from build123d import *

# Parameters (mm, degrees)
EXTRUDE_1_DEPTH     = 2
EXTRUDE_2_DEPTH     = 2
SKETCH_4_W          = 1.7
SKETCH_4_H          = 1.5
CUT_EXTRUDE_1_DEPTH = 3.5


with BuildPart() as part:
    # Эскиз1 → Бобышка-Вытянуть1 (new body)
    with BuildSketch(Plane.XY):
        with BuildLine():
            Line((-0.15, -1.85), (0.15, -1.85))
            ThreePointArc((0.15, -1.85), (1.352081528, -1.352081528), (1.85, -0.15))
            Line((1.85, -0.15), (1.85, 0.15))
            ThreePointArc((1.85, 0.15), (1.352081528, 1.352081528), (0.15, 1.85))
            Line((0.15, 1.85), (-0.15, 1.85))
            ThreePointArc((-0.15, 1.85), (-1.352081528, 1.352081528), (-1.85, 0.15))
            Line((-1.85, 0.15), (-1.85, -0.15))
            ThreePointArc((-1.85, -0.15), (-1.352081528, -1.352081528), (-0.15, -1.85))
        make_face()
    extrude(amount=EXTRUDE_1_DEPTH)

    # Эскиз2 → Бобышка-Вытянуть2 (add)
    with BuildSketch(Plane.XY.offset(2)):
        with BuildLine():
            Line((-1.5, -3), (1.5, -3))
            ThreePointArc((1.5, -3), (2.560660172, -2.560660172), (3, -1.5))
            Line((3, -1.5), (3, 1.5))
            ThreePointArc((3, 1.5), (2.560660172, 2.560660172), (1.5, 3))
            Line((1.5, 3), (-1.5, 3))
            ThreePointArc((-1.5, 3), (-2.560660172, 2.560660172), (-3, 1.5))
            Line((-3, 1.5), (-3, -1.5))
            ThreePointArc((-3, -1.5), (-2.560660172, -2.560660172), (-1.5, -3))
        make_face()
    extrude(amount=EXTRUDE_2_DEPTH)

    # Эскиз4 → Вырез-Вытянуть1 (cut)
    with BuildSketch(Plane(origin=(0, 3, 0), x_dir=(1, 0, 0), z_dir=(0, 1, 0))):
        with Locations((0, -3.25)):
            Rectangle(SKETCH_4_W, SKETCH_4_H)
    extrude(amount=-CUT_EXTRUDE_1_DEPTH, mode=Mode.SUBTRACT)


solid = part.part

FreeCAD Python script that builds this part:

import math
import FreeCAD as App
import Part
import Sketcher
Q = App.Units.Quantity

doc = App.newDocument("Part")
body = doc.addObject("PartDesign::Body", "Body")

# Sketch on XY plane
sketch1 = body.newObject("Sketcher::SketchObject", "Sketch")
sketch1.AttachmentSupport = (doc.getObject("XY_Plane"), [""])
sketch1.MapMode = "FlatFace"
sketch1.addGeometry([
    Part.LineSegment(App.Vector(-0.15, -1.85, 0), App.Vector(0.15, -1.85, 0)),  # 0
    Part.ArcOfCircle(Part.Circle(App.Vector(0.15, -0.15, 0), App.Vector(0, 0, 1), 1.7), math.radians(-90), math.radians(0)),  # 1
    Part.LineSegment(App.Vector(1.85, -0.15, 0), App.Vector(1.85, 0.15, 0)),  # 2
    Part.ArcOfCircle(Part.Circle(App.Vector(0.15, 0.15, 0), App.Vector(0, 0, 1), 1.7), math.radians(0), math.radians(90)),  # 3
    Part.LineSegment(App.Vector(0.15, 1.85, 0), App.Vector(-0.15, 1.85, 0)),  # 4
    Part.ArcOfCircle(Part.Circle(App.Vector(-0.15, 0.15, 0), App.Vector(0, 0, 1), 1.7), math.radians(90), math.radians(180)),  # 5
    Part.LineSegment(App.Vector(-1.85, 0.15, 0), App.Vector(-1.85, -0.15, 0)),  # 6
    Part.ArcOfCircle(Part.Circle(App.Vector(-0.15, -0.15, 0), App.Vector(0, 0, 1), 1.7), math.radians(180), math.radians(270)),  # 7
], False)
sketch1.addConstraint([
    Sketcher.Constraint("Tangent", 0, 2, 1, 1),
    Sketcher.Constraint("Tangent", 1, 2, 2, 1),
    Sketcher.Constraint("Tangent", 2, 2, 3, 1),
    Sketcher.Constraint("Tangent", 3, 2, 4, 1),
    Sketcher.Constraint("Tangent", 4, 2, 5, 1),
    Sketcher.Constraint("Tangent", 5, 2, 6, 1),
    Sketcher.Constraint("Tangent", 6, 2, 7, 1),
    Sketcher.Constraint("Tangent", 7, 2, 0, 1),
    Sketcher.Constraint("Horizontal", 0),
    Sketcher.Constraint("Vertical", 2),
    Sketcher.Constraint("Horizontal", 4),
    Sketcher.Constraint("Vertical", 6),
    Sketcher.Constraint("Equal", 1, 3),
    Sketcher.Constraint("Equal", 3, 5),
    Sketcher.Constraint("Equal", 5, 7),
    Sketcher.Constraint("Symmetric", 1, 3, 5, 3, -1, 1),
    Sketcher.Constraint("Equal", 4, 2),
    Sketcher.Constraint("Radius", 1, Q("1.7 mm")),
    Sketcher.Constraint("DistanceX", 0, 1, 0, 2, Q("0.3 mm")),
])
pad1 = body.newObject("PartDesign::Pad", "Pad")
pad1.Profile = sketch1
pad1.Length = 2

# Sketch on XY plane
sketch2 = body.newObject("Sketcher::SketchObject", "Sketch001")
sketch2.AttachmentSupport = (doc.getObject("XY_Plane"), [""])
sketch2.MapMode = "FlatFace"
sketch2.AttachmentOffset = App.Placement(App.Vector(0, 0, 2), App.Rotation())
sketch2.addGeometry([
    Part.LineSegment(App.Vector(-1.5, -3, 0), App.Vector(1.5, -3, 0)),  # 0
    Part.ArcOfCircle(Part.Circle(App.Vector(1.5, -1.5, 0), App.Vector(0, 0, 1), 1.5), math.radians(-90), math.radians(0)),  # 1
    Part.LineSegment(App.Vector(3, -1.5, 0), App.Vector(3, 1.5, 0)),  # 2
    Part.ArcOfCircle(Part.Circle(App.Vector(1.5, 1.5, 0), App.Vector(0, 0, 1), 1.5), math.radians(0), math.radians(90)),  # 3
    Part.LineSegment(App.Vector(1.5, 3, 0), App.Vector(-1.5, 3, 0)),  # 4
    Part.ArcOfCircle(Part.Circle(App.Vector(-1.5, 1.5, 0), App.Vector(0, 0, 1), 1.5), math.radians(90), math.radians(180)),  # 5
    Part.LineSegment(App.Vector(-3, 1.5, 0), App.Vector(-3, -1.5, 0)),  # 6
    Part.ArcOfCircle(Part.Circle(App.Vector(-1.5, -1.5, 0), App.Vector(0, 0, 1), 1.5), math.radians(180), math.radians(270)),  # 7
], False)
sketch2.addConstraint([
    Sketcher.Constraint("Tangent", 0, 2, 1, 1),
    Sketcher.Constraint("Tangent", 1, 2, 2, 1),
    Sketcher.Constraint("Tangent", 2, 2, 3, 1),
    Sketcher.Constraint("Tangent", 3, 2, 4, 1),
    Sketcher.Constraint("Tangent", 4, 2, 5, 1),
    Sketcher.Constraint("Tangent", 5, 2, 6, 1),
    Sketcher.Constraint("Tangent", 6, 2, 7, 1),
    Sketcher.Constraint("Tangent", 7, 2, 0, 1),
    Sketcher.Constraint("Horizontal", 0),
    Sketcher.Constraint("Vertical", 2),
    Sketcher.Constraint("Horizontal", 4),
    Sketcher.Constraint("Vertical", 6),
    Sketcher.Constraint("Equal", 1, 3),
    Sketcher.Constraint("Equal", 3, 5),
    Sketcher.Constraint("Equal", 5, 7),
    Sketcher.Constraint("Symmetric", 1, 3, 5, 3, -1, 1),
    Sketcher.Constraint("Equal", 4, 2),
    Sketcher.Constraint("Radius", 1, Q("1.5 mm")),
    Sketcher.Constraint("DistanceX", 0, 1, 0, 2, Q("3 mm")),
])
pad2 = body.newObject("PartDesign::Pad", "Pad001")
pad2.Profile = sketch2
pad2.Length = 2

# Sketch on XZ plane
sketch3 = body.newObject("Sketcher::SketchObject", "Sketch002")
sketch3.AttachmentSupport = (doc.getObject("XZ_Plane"), [""])
sketch3.MapMode = "FlatFace"
sketch3.AttachmentOffset = App.Placement(App.Vector(0, 0, -3), App.Rotation())
sketch3.addGeometry([
    Part.LineSegment(App.Vector(-0.8, 2.5, 0), App.Vector(-0.8, 4, 0)),
    Part.LineSegment(App.Vector(-0.8, 4, 0), App.Vector(0.8, 4, 0)),
    Part.LineSegment(App.Vector(0.8, 4, 0), App.Vector(0.8, 2.5, 0)),
    Part.LineSegment(App.Vector(0.8, 2.5, 0), App.Vector(-0.8, 2.5, 0)),
], False)
sketch3.addConstraint([
    Sketcher.Constraint("Coincident", 0, 2, 1, 1),
    Sketcher.Constraint("Coincident", 1, 2, 2, 1),
    Sketcher.Constraint("Coincident", 2, 2, 3, 1),
    Sketcher.Constraint("Coincident", 3, 2, 0, 1),
    Sketcher.Constraint("Vertical", 0),
    Sketcher.Constraint("Horizontal", 1),
    Sketcher.Constraint("Vertical", 2),
    Sketcher.Constraint("Horizontal", 3),
    Sketcher.Constraint("DistanceX", 1, 1, 1, 2, Q("1.7 mm")),
    Sketcher.Constraint("DistanceY", 0, 1, 0, 2, Q("1.5 mm")),
    Sketcher.Constraint("DistanceY", -1, 1, 0, 2, Q("4 mm")),
    Sketcher.Constraint("DistanceX", 0, 2, -1, 1, Q("0.85 mm")),
])
pocket1 = body.newObject("PartDesign::Pocket", "Pocket")
pocket1.Profile = sketch3
pocket1.Length = 3.5
pocket1.Reversed = True

doc.recompute()
